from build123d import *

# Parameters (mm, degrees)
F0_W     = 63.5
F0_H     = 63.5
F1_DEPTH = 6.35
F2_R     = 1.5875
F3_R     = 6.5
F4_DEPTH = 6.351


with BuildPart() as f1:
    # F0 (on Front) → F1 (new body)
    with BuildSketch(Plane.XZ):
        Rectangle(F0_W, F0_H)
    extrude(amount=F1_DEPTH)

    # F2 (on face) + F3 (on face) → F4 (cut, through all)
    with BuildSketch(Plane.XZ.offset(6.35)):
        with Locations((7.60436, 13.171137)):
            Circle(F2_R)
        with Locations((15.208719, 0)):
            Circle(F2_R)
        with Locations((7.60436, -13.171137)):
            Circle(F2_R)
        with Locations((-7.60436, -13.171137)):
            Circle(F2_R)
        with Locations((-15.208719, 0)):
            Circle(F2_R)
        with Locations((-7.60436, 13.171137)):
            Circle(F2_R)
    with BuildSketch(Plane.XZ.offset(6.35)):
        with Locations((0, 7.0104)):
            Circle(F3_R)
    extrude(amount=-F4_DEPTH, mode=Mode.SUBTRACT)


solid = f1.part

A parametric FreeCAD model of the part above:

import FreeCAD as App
import Part
import Sketcher
Q = App.Units.Quantity

doc = App.newDocument("Part")
params = doc.addObject("Spreadsheet::Sheet", "Params")
for row, (alias, value) in enumerate([
    ("sketch1_width", "2.5 in"),
    ("pad1_length", "0.25 in"),
    ("sketch2_diameter", "0.125 in"),
], start=1):
    params.set(f"A{row}", alias)
    params.set(f"B{row}", "=" + value)
    params.setAlias(f"B{row}", alias)

body = doc.addObject("PartDesign::Body", "Body")

sketch1 = body.newObject("Sketcher::SketchObject", "Sketch")
sketch1.AttachmentSupport = (doc.getObject("XZ_Plane"), [""])
sketch1.MapMode = "FlatFace"
sketch1.addGeometry([
    Part.LineSegment(App.Vector(-32, 32, 0), App.Vector(-32, -32, 0)),
    Part.LineSegment(App.Vector(-32, -32, 0), App.Vector(32, -32, 0)),
    Part.LineSegment(App.Vector(32, -32, 0), App.Vector(32, 32, 0)),
    Part.LineSegment(App.Vector(32, 32, 0), App.Vector(-32, 32, 0)),
], False)
sketch1.addConstraint([
    Sketcher.Constraint("Coincident", 0, 2, 1, 1),
    Sketcher.Constraint("Coincident", 1, 2, 2, 1),
    Sketcher.Constraint("Coincident", 2, 2, 3, 1),
    Sketcher.Constraint("Coincident", 3, 2, 0, 1),
    Sketcher.Constraint("Vertical", 0),
    Sketcher.Constraint("Horizontal", 1),
    Sketcher.Constraint("Vertical", 2),
    Sketcher.Constraint("Horizontal", 3),
    Sketcher.Constraint("Symmetric", 0, 2, 2, 2, -1, 1),
    Sketcher.Constraint("Equal", 3, 0),
    Sketcher.Constraint("DistanceX", 1, 1, 1, 2, Q("2.5 in")),
])
sketch1.setExpression("Constraints[10]", "Params.sketch1_width")
pad1 = body.newObject("PartDesign::Pad", "Pad")
pad1.Profile = sketch1
pad1.setExpression("Length", "Params.pad1_length")

sketch2 = body.newObject("Sketcher::SketchObject", "Sketch001")
sketch2.AttachmentSupport = (doc.getObject("XZ_Plane"), [""])
sketch2.MapMode = "FlatFace"
sketch2.AttachmentOffset = App.Placement(App.Vector(0, 0, 0.25 * 25.4), App.Rotation())
sketch2.addGeometry([
    Part.Circle(App.Vector(7.6, 13.2, 0), App.Vector(0, 0, 1), 1.6),
    Part.Circle(App.Vector(15.2, 0, 0), App.Vector(0, 0, 1), 1.6),
    Part.Circle(App.Vector(7.6, -13.2, 0), App.Vector(0, 0, 1), 1.6),
    Part.Circle(App.Vector(-7.6, -13.2, 0), App.Vector(0, 0, 1), 1.6),
    Part.Circle(App.Vector(-15.2, 0, 0), App.Vector(0, 0, 1), 1.6),
    Part.Circle(App.Vector(-7.6, 13.2, 0), App.Vector(0, 0, 1), 1.6),
    Part.Circle(App.Vector(0, 7, 0), App.Vector(0, 0, 1), 6.5),
], False)
sketch2.addConstraint([
    Sketcher.Constraint("Equal", 0, 1),
    Sketcher.Constraint("Equal", 1, 2),
    Sketcher.Constraint("Equal", 2, 3),
    Sketcher.Constraint("Equal", 3, 4),
    Sketcher.Constraint("Equal", 4, 5),
    Sketcher.Constraint("Symmetric", 0, 3, 3, 3, -1, 1),
    Sketcher.Constraint("Symmetric", 1, 3, 4, 3, -1, 1),
    Sketcher.Constraint("Symmetric", 2, 3, 5, 3, -1, 1),
    Sketcher.Constraint("Symmetric", 2, 3, 3, 3, -2),
    Sketcher.Constraint("PointOnObject", 1, 3, -1),
    Sketcher.Constraint("PointOnObject", 6, 3, -2),
    Sketcher.Constraint("Diameter", 0, Q("0.125 in")),
    Sketcher.Constraint("Diameter", 6, 13.0),
    Sketcher.Constraint("DistanceY", -1, 1, 6, 3, Q("0.276 in")),
    Sketcher.Constraint("DistanceX", -1, 1, 0, 3, 7.60436),
    Sketcher.Constraint("DistanceX", -1, 1, 1, 3, 15.208719),
    Sketcher.Constraint("DistanceY", -1, 1, 0, 3, 13.171137),
])
sketch2.setExpression("Constraints[11]", "Params.sketch2_diameter")
pocket1 = body.newObject("PartDesign::Pocket", "Pocket")
pocket1.Profile = sketch2
pocket1.Type = "ThroughAll"

doc.recompute()
